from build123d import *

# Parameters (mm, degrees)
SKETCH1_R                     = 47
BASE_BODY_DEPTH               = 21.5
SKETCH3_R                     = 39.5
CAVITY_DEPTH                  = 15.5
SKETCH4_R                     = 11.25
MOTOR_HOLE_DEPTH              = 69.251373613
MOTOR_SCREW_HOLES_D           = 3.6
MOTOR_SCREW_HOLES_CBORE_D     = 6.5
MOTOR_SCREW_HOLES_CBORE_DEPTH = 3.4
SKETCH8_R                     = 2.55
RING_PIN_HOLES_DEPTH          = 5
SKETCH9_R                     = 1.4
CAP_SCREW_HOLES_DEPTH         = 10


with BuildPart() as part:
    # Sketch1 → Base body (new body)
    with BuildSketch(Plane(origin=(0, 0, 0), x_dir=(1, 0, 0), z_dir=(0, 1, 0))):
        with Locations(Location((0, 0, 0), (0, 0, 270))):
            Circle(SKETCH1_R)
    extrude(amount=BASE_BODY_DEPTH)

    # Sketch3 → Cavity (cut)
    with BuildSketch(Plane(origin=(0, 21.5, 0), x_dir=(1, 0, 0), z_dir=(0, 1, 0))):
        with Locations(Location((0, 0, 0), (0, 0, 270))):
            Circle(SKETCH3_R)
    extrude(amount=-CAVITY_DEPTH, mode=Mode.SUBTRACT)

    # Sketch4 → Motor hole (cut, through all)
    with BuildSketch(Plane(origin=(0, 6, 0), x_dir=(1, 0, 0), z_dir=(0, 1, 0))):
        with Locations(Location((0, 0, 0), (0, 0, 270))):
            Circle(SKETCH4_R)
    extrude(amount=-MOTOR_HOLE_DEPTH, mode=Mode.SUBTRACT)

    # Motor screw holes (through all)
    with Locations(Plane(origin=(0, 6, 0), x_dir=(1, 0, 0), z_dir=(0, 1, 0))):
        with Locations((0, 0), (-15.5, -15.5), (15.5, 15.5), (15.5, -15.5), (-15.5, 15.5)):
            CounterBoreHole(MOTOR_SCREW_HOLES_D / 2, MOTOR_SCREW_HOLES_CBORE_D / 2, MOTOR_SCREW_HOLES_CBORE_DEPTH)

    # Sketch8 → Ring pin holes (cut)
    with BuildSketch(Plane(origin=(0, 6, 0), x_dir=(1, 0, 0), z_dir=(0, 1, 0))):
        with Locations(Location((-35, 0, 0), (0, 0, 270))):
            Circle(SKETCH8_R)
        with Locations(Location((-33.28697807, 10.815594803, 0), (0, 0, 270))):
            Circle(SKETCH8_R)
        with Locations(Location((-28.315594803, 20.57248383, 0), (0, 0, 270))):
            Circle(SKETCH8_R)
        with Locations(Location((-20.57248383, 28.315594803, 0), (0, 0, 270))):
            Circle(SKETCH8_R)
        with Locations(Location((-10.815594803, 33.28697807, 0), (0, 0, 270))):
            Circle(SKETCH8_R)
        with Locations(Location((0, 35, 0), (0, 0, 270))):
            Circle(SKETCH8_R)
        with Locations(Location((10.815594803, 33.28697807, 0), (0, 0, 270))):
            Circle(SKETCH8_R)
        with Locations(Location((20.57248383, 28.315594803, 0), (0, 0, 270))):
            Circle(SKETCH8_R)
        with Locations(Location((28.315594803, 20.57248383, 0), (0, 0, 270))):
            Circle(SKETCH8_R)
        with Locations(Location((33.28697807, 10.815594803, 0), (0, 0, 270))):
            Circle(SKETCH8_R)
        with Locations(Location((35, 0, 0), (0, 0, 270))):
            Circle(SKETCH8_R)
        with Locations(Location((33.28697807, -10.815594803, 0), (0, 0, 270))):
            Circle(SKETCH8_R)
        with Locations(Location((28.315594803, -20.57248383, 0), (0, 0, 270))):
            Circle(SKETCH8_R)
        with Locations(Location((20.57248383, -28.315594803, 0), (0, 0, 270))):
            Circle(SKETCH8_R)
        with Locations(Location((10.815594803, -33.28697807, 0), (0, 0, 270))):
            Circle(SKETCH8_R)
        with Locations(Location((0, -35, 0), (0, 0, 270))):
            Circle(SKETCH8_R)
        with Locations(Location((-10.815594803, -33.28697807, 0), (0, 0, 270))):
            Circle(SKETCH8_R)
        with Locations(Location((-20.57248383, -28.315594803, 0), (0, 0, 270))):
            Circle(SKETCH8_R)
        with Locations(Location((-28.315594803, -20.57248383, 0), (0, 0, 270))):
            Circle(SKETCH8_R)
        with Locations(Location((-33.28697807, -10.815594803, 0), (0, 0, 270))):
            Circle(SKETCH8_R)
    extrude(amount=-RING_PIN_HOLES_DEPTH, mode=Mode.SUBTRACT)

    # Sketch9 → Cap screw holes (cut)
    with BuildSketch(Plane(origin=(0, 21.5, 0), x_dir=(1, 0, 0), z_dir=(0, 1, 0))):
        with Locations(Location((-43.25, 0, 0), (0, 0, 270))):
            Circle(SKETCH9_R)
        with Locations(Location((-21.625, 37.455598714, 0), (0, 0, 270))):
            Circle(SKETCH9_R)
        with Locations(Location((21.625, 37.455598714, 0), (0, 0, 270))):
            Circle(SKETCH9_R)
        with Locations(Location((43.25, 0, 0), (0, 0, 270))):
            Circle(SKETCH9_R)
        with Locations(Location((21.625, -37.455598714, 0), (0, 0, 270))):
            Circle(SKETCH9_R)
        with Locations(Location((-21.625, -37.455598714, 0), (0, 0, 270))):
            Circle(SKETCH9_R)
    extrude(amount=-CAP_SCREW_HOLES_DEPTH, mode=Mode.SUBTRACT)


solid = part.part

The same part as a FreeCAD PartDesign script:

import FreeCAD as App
import Part
import Sketcher
Q = App.Units.Quantity

doc = App.newDocument("Part")
body = doc.addObject("PartDesign::Body", "Body")

# Sketch on XZ plane
sketch1 = doc.addObject("Sketcher::SketchObject", "Sketch")
body.addObject(sketch1)
sketch1.AttachmentSupport = (doc.XZ_Plane, [""])
sketch1.MapMode = "FlatFace"
sketch1.addGeometry(Part.Circle(App.Vector(0, 0, 0), App.Vector(0, 0, 1), 47), False)
sketch1.addConstraint([
    Sketcher.Constraint("Coincident", 0, 3, -1, 1),
    Sketcher.Constraint("Diameter", 0, Q("94 mm")),
])
pad1 = doc.addObject("PartDesign::Pad", "Pad")
body.addObject(pad1)
pad1.Profile = sketch1
pad1.Length = 21.5
pad1.Reversed = True

# Sketch on XZ plane
sketch2 = doc.addObject("Sketcher::SketchObject", "Sketch001")
body.addObject(sketch2)
sketch2.AttachmentSupport = (doc.XZ_Plane, [""])
sketch2.MapMode = "FlatFace"
sketch2.AttachmentOffset = App.Placement(App.Vector(0, 0, -21.5), App.Rotation())
sketch2.addGeometry(Part.Circle(App.Vector(0, 0, 0), App.Vector(0, 0, 1), 40), False)
sketch2.addConstraint([
    Sketcher.Constraint("Coincident", 0, 3, -1, 1),
    Sketcher.Constraint("Diameter", 0, Q("79 mm")),
])
pocket1 = doc.addObject("PartDesign::Pocket", "Pocket")
body.addObject(pocket1)
pocket1.Profile = sketch2
pocket1.Length = 15.5
pocket1.Reversed = True

# Sketch on XZ plane
sketch3 = doc.addObject("Sketcher::SketchObject", "Sketch002")
body.addObject(sketch3)
sketch3.AttachmentSupport = (doc.XZ_Plane, [""])
sketch3.MapMode = "FlatFace"
sketch3.AttachmentOffset = App.Placement(App.Vector(0, 0, -6), App.Rotation())
sketch3.addGeometry(Part.Circle(App.Vector(0, 0, 0), App.Vector(0, 0, 1), 11), False)
sketch3.addConstraint([
    Sketcher.Constraint("Coincident", 0, 3, -1, 1),
    Sketcher.Constraint("Diameter", 0, Q("22.5 mm")),
])
pocket2 = doc.addObject("PartDesign::Pocket", "Pocket001")
body.addObject(pocket2)
pocket2.Profile = sketch3
pocket2.Type = "ThroughAll"
pocket2.Reversed = True

# Sketch on XZ plane
sketch4 = doc.addObject("Sketcher::SketchObject", "Sketch003")
body.addObject(sketch4)
sketch4.AttachmentSupport = (doc.XZ_Plane, [""])
sketch4.MapMode = "FlatFace"
sketch4.AttachmentOffset = App.Placement(App.Vector(0, 0, -6), App.Rotation())
sketch4.addGeometry([
    Part.Circle(App.Vector(0, 0, 0), App.Vector(0, 0, 1), 1.8),  # 0
    Part.Circle(App.Vector(-15.5, 15.5, 0), App.Vector(0, 0, 1), 1.8),  # 1
    Part.Circle(App.Vector(15.5, -15.5, 0), App.Vector(0, 0, 1), 1.8),  # 2
    Part.Circle(App.Vector(15.5, 15.5, 0), App.Vector(0, 0, 1), 1.8),  # 3
    Part.Circle(App.Vector(-15.5, -15.5, 0), App.Vector(0, 0, 1), 1.8),  # 4
], False)
sketch4.addConstraint([
    Sketcher.Constraint("Coincident", 0, 3, -1, 1),
    Sketcher.Constraint("Equal", 0, 1),
    Sketcher.Constraint("Equal", 1, 2),
    Sketcher.Constraint("Equal", 2, 3),
    Sketcher.Constraint("Equal", 3, 4),
    Sketcher.Constraint("Symmetric", 1, 3, 2, 3, -1, 1),
    Sketcher.Constraint("Symmetric", 3, 3, 4, 3, -1, 1),
    Sketcher.Constraint("Symmetric", 1, 3, 3, 3, -2),
    Sketcher.Constraint("Diameter", 0, Q("3.6 mm")),
    Sketcher.Constraint("DistanceX", 1, 3, 2, 3, Q("31 mm")),
    Sketcher.Constraint("DistanceY", 2, 3, 1, 3, Q("31 mm")),
])
doc.recompute()
hole = doc.addObject("PartDesign::Hole", "Hole")
body.addObject(hole)
hole.Profile = sketch4
hole.ThreadType = "None"
hole.Diameter = 3.6
hole.DepthType = "ThroughAll"
hole.HoleCutType = "Counterbore"
hole.HoleCutDiameter = 6.5
hole.HoleCutDepth = 3.4
hole.Reversed = True

# Sketch on XZ plane
sketch5 = doc.addObject("Sketcher::SketchObject", "Sketch004")
body.addObject(sketch5)
sketch5.AttachmentSupport = (doc.XZ_Plane, [""])
sketch5.MapMode = "FlatFace"
sketch5.AttachmentOffset = App.Placement(App.Vector(0, 0, -6), App.Rotation())
sketch5.addGeometry([
    Part.Circle(App.Vector(-35, 0, 0), App.Vector(0, 0, 1), 2.5),  # 0
    Part.Circle(App.Vector(-33.3, -10.8, 0), App.Vector(0, 0, 1), 2.5),  # 1
    Part.Circle(App.Vector(-28.3, -20.6, 0), App.Vector(0, 0, 1), 2.5),  # 2
    Part.Circle(App.Vector(-20.6, -28.3, 0), App.Vector(0, 0, 1), 2.5),  # 3
    Part.Circle(App.Vector(-10.8, -33.3, 0), App.Vector(0, 0, 1), 2.5),  # 4
    Part.Circle(App.Vector(0, -35, 0), App.Vector(0, 0, 1), 2.5),  # 5
    Part.Circle(App.Vector(10.8, -33.3, 0), App.Vector(0, 0, 1), 2.5),  # 6
    Part.Circle(App.Vector(20.6, -28.3, 0), App.Vector(0, 0, 1), 2.5),  # 7
    Part.Circle(App.Vector(28.3, -20.6, 0), App.Vector(0, 0, 1), 2.5),  # 8
    Part.Circle(App.Vector(33.3, -10.8, 0), App.Vector(0, 0, 1), 2.5),  # 9
    Part.Circle(App.Vector(35, 0, 0), App.Vector(0, 0, 1), 2.5),  # 10
    Part.Circle(App.Vector(33.3, 10.8, 0), App.Vector(0, 0, 1), 2.5),  # 11
    Part.Circle(App.Vector(28.3, 20.6, 0), App.Vector(0, 0, 1), 2.5),  # 12
    Part.Circle(App.Vector(20.6, 28.3, 0), App.Vector(0, 0, 1), 2.5),  # 13
    Part.Circle(App.Vector(10.8, 33.3, 0), App.Vector(0, 0, 1), 2.5),  # 14
    Part.Circle(App.Vector(0, 35, 0), App.Vector(0, 0, 1), 2.5),  # 15
    Part.Circle(App.Vector(-10.8, 33.3, 0), App.Vector(0, 0, 1), 2.5),  # 16
    Part.Circle(App.Vector(-20.6, 28.3, 0), App.Vector(0, 0, 1), 2.5),  # 17
    Part.Circle(App.Vector(-28.3, 20.6, 0), App.Vector(0, 0, 1), 2.5),  # 18
    Part.Circle(App.Vector(-33.3, 10.8, 0), App.Vector(0, 0, 1), 2.5),  # 19
], False)
sketch5.addConstraint([
    Sketcher.Constraint("Equal", 0, 1),
    Sketcher.Constraint("Equal", 1, 2),
    Sketcher.Constraint("Equal", 2, 3),
    Sketcher.Constraint("Equal", 3, 4),
    Sketcher.Constraint("Equal", 4, 5),
    Sketcher.Constraint("Equal", 5, 6),
    Sketcher.Constraint("Equal", 6, 7),
    Sketcher.Constraint("Equal", 7, 8),
    Sketcher.Constraint("Equal", 8, 9),
    Sketcher.Constraint("Equal", 9, 10),
    Sketcher.Constraint("Equal", 10, 11),
    Sketcher.Constraint("Equal", 11, 12),
    Sketcher.Constraint("Equal", 12, 13),
    Sketcher.Constraint("Equal", 13, 14),
    Sketcher.Constraint("Equal", 14, 15),
    Sketcher.Constraint("Equal", 15, 16),
    Sketcher.Constraint("Equal", 16, 17),
    Sketcher.Constraint("Equal", 17, 18),
    Sketcher.Constraint("Equal", 18, 19),
    Sketcher.Constraint("Symmetric", 0, 3, 10, 3, -1, 1),
    Sketcher.Constraint("Symmetric", 1, 3, 11, 3, -1, 1),
    Sketcher.Constraint("Symmetric", 2, 3, 12, 3, -1, 1),
    Sketcher.Constraint("Symmetric", 3, 3, 13, 3, -1, 1),
    Sketcher.Constraint("Symmetric", 4, 3, 14, 3, -1, 1),
    Sketcher.Constraint("Symmetric", 5, 3, 15, 3, -1, 1),
    Sketcher.Constraint("Symmetric", 6, 3, 16, 3, -1, 1),
    Sketcher.Constraint("Symmetric", 7, 3, 17, 3, -1, 1),
    Sketcher.Constraint("Symmetric", 8, 3, 18, 3, -1, 1),
    Sketcher.Constraint("Symmetric", 9, 3, 19, 3, -1, 1),
    Sketcher.Constraint("Symmetric", 4, 3, 6, 3, -2),
    Sketcher.Constraint("Symmetric", 3, 3, 7, 3, -2),
    Sketcher.Constraint("Symmetric", 2, 3, 8, 3, -2),
    Sketcher.Constraint("Symmetric", 1, 3, 9, 3, -2),
    Sketcher.Constraint("PointOnObject", 0, 3, -1),
    Sketcher.Constraint("PointOnObject", 5, 3, -2),
    Sketcher.Constraint("Diameter", 0, Q("5.1 mm")),
    Sketcher.Constraint("DistanceX", 0, 3, -1, 1, Q("35 mm")),
    Sketcher.Constraint("DistanceY", 5, 3, -1, 1, Q("35 mm")),
    Sketcher.Constraint("DistanceY", 3, 3, 1, 3, Q("17.5 mm")),
    Sketcher.Constraint("DistanceX", 2, 3, 4, 3, Q("17.5 mm")),
    Sketcher.Constraint("DistanceX", 1, 3, -1, 1, Q("33.286978 mm")),
    Sketcher.Constraint("DistanceY", 4, 3, -1, 1, Q("33.286978 mm")),
    Sketcher.Constraint("DistanceY", 2, 3, 1, 3, Q("9.756889 mm")),
    Sketcher.Constraint("DistanceX", 2, 3, 3, 3, Q("7.743111 mm")),
    Sketcher.Constraint("DistanceX", 4, 3, 6, 3, Q("21.63119 mm")),
    Sketcher.Constraint("DistanceY", 9, 3, 11, 3, Q("21.63119 mm")),
])
pocket3 = doc.addObject("PartDesign::Pocket", "Pocket002")
body.addObject(pocket3)
pocket3.Profile = sketch5
pocket3.Length = 5
pocket3.Reversed = True

# Sketch on XZ plane
sketch6 = doc.addObject("Sketcher::SketchObject", "Sketch005")
body.addObject(sketch6)
sketch6.AttachmentSupport = (doc.XZ_Plane, [""])
sketch6.MapMode = "FlatFace"
sketch6.AttachmentOffset = App.Placement(App.Vector(0, 0, -21.5), App.Rotation())
sketch6.addGeometry([
    Part.Circle(App.Vector(-43.2, 0, 0), App.Vector(0, 0, 1), 1.4),  # 0
    Part.Circle(App.Vector(-21.6, -37.5, 0), App.Vector(0, 0, 1), 1.4),  # 1
    Part.Circle(App.Vector(21.6, -37.5, 0), App.Vector(0, 0, 1), 1.4),  # 2
    Part.Circle(App.Vector(43.2, 0, 0), App.Vector(0, 0, 1), 1.4),  # 3
    Part.Circle(App.Vector(21.6, 37.5, 0), App.Vector(0, 0, 1), 1.4),  # 4
    Part.Circle(App.Vector(-21.6, 37.5, 0), App.Vector(0, 0, 1), 1.4),  # 5
], False)
sketch6.addConstraint([
    Sketcher.Constraint("Equal", 0, 1),
    Sketcher.Constraint("Equal", 1, 2),
    Sketcher.Constraint("Equal", 2, 3),
    Sketcher.Constraint("Equal", 3, 4),
    Sketcher.Constraint("Equal", 4, 5),
    Sketcher.Constraint("Symmetric", 0, 3, 3, 3, -1, 1),
    Sketcher.Constraint("Symmetric", 1, 3, 4, 3, -1, 1),
    Sketcher.Constraint("Symmetric", 2, 3, 5, 3, -1, 1),
    Sketcher.Constraint("Symmetric", 1, 3, 2, 3, -2),
    Sketcher.Constraint("PointOnObject", 0, 3, -1),
    Sketcher.Constraint("Diameter", 0, Q("2.8 mm")),
    Sketcher.Constraint("DistanceX", 0, 3, 3, 3, Q("86.5 mm")),
    Sketcher.Constraint("DistanceX", 1, 3, 2, 3, Q("43.25 mm")),
    Sketcher.Constraint("DistanceY", 1, 3, -1, 1, Q("37.455599 mm")),
])
pocket4 = doc.addObject("PartDesign::Pocket", "Pocket003")
body.addObject(pocket4)
pocket4.Profile = sketch6
pocket4.Length = 10
pocket4.Reversed = True

doc.recompute()
